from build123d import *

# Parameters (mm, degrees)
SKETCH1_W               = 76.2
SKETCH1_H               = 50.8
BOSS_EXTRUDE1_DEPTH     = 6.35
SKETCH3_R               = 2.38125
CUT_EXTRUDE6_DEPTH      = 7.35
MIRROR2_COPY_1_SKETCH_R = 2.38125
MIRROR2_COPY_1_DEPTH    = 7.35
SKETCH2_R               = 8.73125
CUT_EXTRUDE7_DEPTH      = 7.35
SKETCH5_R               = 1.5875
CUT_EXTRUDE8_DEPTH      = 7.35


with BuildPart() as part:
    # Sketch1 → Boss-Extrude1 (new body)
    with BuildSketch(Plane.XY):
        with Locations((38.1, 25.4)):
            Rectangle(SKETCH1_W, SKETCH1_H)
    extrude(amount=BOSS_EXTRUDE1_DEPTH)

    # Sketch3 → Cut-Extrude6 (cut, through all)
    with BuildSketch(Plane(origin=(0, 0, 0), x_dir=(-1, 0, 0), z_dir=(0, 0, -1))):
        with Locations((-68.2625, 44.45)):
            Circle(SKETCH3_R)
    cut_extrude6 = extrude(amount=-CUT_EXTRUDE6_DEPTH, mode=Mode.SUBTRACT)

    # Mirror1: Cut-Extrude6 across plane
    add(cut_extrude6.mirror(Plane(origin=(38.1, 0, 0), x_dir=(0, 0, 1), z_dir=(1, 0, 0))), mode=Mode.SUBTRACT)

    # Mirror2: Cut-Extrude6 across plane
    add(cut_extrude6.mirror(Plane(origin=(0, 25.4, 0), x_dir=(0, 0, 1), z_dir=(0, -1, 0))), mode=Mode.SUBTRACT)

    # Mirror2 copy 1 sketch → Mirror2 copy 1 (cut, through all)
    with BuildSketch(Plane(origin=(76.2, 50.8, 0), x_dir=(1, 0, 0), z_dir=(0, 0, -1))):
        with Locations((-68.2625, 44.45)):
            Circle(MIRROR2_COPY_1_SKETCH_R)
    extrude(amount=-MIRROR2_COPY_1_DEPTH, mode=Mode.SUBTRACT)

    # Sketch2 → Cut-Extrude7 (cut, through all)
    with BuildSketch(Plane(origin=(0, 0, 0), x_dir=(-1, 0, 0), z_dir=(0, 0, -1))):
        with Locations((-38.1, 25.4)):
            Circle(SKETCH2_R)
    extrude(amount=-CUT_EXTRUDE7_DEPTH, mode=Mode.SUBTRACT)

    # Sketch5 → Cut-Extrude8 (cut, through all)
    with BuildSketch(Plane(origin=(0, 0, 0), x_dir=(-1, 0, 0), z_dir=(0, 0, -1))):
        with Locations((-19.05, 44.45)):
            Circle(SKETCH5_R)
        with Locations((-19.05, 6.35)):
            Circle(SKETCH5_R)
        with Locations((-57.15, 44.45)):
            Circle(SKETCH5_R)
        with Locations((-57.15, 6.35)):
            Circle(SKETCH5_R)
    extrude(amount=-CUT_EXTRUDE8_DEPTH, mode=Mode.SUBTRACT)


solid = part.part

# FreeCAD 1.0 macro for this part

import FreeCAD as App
import Part
import Sketcher
from FreeCAD import Vector
Q = App.Units.Quantity

doc = App.newDocument("Part")
params = doc.addObject("Spreadsheet::Sheet", "Params")
for row, (alias, value) in enumerate([
    ("sketch1_width", "3 in"),
    ("sketch1_height", "2 in"),
    ("pad1_length", "0.25 in"),
    ("sketch2_diameter", "0.1875 in"),
    ("sketch3_diameter", "0.1875 in"),
    ("sketch4_diameter", "0.6875 in"),
    ("sketch5_diameter", "0.125 in"),
], start=1):
    params.set(f"A{row}", alias)
    params.set(f"B{row}", "=" + value)
    params.setAlias(f"B{row}", alias)

body = doc.addObject("PartDesign::Body", "Body")

sketch1 = body.newObject("Sketcher::SketchObject", "Sketch")
sketch1.AttachmentSupport = (doc.getObject("XY_Plane"), [""])
sketch1.MapMode = "FlatFace"
sketch1.addGeometry([
    Part.LineSegment(Vector(0, 51, 0), Vector(0, 0, 0)),
    Part.LineSegment(Vector(0, 0, 0), Vector(76, 0, 0)),
    Part.LineSegment(Vector(76, 0, 0), Vector(76, 51, 0)),
    Part.LineSegment(Vector(76, 51, 0), Vector(0, 51, 0)),
], False)
sketch1.addConstraint([
    Sketcher.Constraint("Coincident", 0, 2, 1, 1),
    Sketcher.Constraint("Coincident", 1, 2, 2, 1),
    Sketcher.Constraint("Coincident", 2, 2, 3, 1),
    Sketcher.Constraint("Coincident", 3, 2, 0, 1),
    Sketcher.Constraint("Vertical", 0),
    Sketcher.Constraint("Horizontal", 1),
    Sketcher.Constraint("Vertical", 2),
    Sketcher.Constraint("Horizontal", 3),
    Sketcher.Constraint("Coincident", 0, 2, -1, 1),
    Sketcher.Constraint("DistanceX", 1, 1, 1, 2, Q("3 in")),
    Sketcher.Constraint("DistanceY", 0, 2, 0, 1, Q("2 in")),
])
sketch1.setExpression("Constraints[9]", "Params.sketch1_width")
sketch1.setExpression("Constraints[10]", "Params.sketch1_height")
pad1 = body.newObject("PartDesign::Pad", "Pad")
pad1.Profile = sketch1
pad1.setExpression("Length", "Params.pad1_length")

sketch2 = body.newObject("Sketcher::SketchObject", "Sketch001")
sketch2.AttachmentSupport = (doc.getObject("XY_Plane"), [""])
sketch2.MapMode = "FlatFace"
sketch2.addGeometry(Part.Circle(Vector(68.3, 44.5, 0), Vector(0, 0, 1), 2.4), False)
sketch2.addConstraint([
    Sketcher.Constraint("Diameter", 0, Q("0.1875 in")),
    Sketcher.Constraint("DistanceY", -1, 1, 0, 3, Q("1.75 in")),
    Sketcher.Constraint("DistanceX", -1, 1, 0, 3, Q("2.6875 in")),
])
sketch2.setExpression("Constraints[0]", "Params.sketch2_diameter")
pocket1 = body.newObject("PartDesign::Pocket", "Pocket")
pocket1.Profile = sketch2
pocket1.Type = "ThroughAll"
pocket1.Reversed = True
doc.recompute()

datumplane = body.newObject("PartDesign::Plane", "DatumPlane")
datumplane.AttachmentSupport = (doc.getObject("YZ_Plane"), [""])
datumplane.MapMode = "FlatFace"
datumplane.AttachmentOffset = App.Placement(Vector(0, 0, 1.5 * 25.4), App.Rotation())
mirrored = body.newObject("PartDesign::Mirrored", "Mirrored")
mirrored.Originals = [pocket1]
mirrored.MirrorPlane = (datumplane, [""])
body.Tip = mirrored
doc.recompute()

datumplane2 = body.newObject("PartDesign::Plane", "DatumPlane001")
datumplane2.AttachmentSupport = (doc.getObject("XZ_Plane"), [""])
datumplane2.MapMode = "FlatFace"
datumplane2.AttachmentOffset = App.Placement(Vector(0, 0, -1 * 25.4), App.Rotation())
mirrored2 = body.newObject("PartDesign::Mirrored", "Mirrored001")
mirrored2.Originals = [pocket1]
mirrored2.MirrorPlane = (datumplane2, [""])
body.Tip = mirrored2

sketch3 = body.newObject("Sketcher::SketchObject", "Sketch002")
sketch3.AttachmentSupport = (doc.getObject("XY_Plane"), [""])
sketch3.MapMode = "FlatFace"
sketch3.addGeometry(Part.Circle(Vector(7.9, 6.3, 0), Vector(0, 0, 1), 2.4), False)
sketch3.addConstraint([
    Sketcher.Constraint("Diameter", 0, Q("0.1875 in")),
    Sketcher.Constraint("DistanceY", -1, 1, 0, 3, Q("0.25 in")),
    Sketcher.Constraint("DistanceX", -1, 1, 0, 3, Q("0.3125 in")),
])
sketch3.setExpression("Constraints[0]", "Params.sketch3_diameter")
pocket2 = body.newObject("PartDesign::Pocket", "Pocket001")
pocket2.Profile = sketch3
pocket2.Type = "ThroughAll"
pocket2.Reversed = True

sketch4 = body.newObject("Sketcher::SketchObject", "Sketch003")
sketch4.AttachmentSupport = (doc.getObject("XY_Plane"), [""])
sketch4.MapMode = "FlatFace"
sketch4.addGeometry(Part.Circle(Vector(38, 25, 0), Vector(0, 0, 1), 9), False)
sketch4.addConstraint([
    Sketcher.Constraint("Diameter", 0, Q("0.6875 in")),
    Sketcher.Constraint("DistanceY", -1, 1, 0, 3, Q("1 in")),
    Sketcher.Constraint("DistanceX", -1, 1, 0, 3, Q("1.5 in")),
])
sketch4.setExpression("Constraints[0]", "Params.sketch4_diameter")
pocket3 = body.newObject("PartDesign::Pocket", "Pocket002")
pocket3.Profile = sketch4
pocket3.Type = "ThroughAll"
pocket3.Reversed = True

sketch5 = body.newObject("Sketcher::SketchObject", "Sketch004")
sketch5.AttachmentSupport = (doc.getObject("XY_Plane"), [""])
sketch5.MapMode = "FlatFace"
sketch5.addGeometry([
    Part.Circle(Vector(19.1, 44.5, 0), Vector(0, 0, 1), 1.6),
    Part.Circle(Vector(19.1, 6.3, 0), Vector(0, 0, 1), 1.6),
    Part.Circle(Vector(57.1, 44.5, 0), Vector(0, 0, 1), 1.6),
    Part.Circle(Vector(57.1, 6.3, 0), Vector(0, 0, 1), 1.6),
], False)
sketch5.addConstraint([
    Sketcher.Constraint("Equal", 0, 1),
    Sketcher.Constraint("Equal", 1, 2),
    Sketcher.Constraint("Equal", 2, 3),
    Sketcher.Constraint("Horizontal", 0, 3, 2, 3),
    Sketcher.Constraint("Horizontal", 1, 3, 3, 3),
    Sketcher.Constraint("Vertical", 0, 3, 1, 3),
    Sketcher.Constraint("Vertical", 2, 3, 3, 3),
    Sketcher.Constraint("Diameter", 0, Q("0.125 in")),
    Sketcher.Constraint("DistanceY", 1, 3, 0, 3, Q("1.5 in")),
    Sketcher.Constraint("DistanceX", 0, 3, 2, 3, Q("1.5 in")),
    Sketcher.Constraint("DistanceX", -1, 1, 0, 3, Q("0.75 in")),
    Sketcher.Constraint("DistanceY", -1, 1, 0, 3, Q("1.75 in")),
])
sketch5.setExpression("Constraints[7]", "Params.sketch5_diameter")
pocket4 = body.newObject("PartDesign::Pocket", "Pocket003")
pocket4.Profile = sketch5
pocket4.Type = "ThroughAll"
pocket4.Reversed = True

doc.recompute()
